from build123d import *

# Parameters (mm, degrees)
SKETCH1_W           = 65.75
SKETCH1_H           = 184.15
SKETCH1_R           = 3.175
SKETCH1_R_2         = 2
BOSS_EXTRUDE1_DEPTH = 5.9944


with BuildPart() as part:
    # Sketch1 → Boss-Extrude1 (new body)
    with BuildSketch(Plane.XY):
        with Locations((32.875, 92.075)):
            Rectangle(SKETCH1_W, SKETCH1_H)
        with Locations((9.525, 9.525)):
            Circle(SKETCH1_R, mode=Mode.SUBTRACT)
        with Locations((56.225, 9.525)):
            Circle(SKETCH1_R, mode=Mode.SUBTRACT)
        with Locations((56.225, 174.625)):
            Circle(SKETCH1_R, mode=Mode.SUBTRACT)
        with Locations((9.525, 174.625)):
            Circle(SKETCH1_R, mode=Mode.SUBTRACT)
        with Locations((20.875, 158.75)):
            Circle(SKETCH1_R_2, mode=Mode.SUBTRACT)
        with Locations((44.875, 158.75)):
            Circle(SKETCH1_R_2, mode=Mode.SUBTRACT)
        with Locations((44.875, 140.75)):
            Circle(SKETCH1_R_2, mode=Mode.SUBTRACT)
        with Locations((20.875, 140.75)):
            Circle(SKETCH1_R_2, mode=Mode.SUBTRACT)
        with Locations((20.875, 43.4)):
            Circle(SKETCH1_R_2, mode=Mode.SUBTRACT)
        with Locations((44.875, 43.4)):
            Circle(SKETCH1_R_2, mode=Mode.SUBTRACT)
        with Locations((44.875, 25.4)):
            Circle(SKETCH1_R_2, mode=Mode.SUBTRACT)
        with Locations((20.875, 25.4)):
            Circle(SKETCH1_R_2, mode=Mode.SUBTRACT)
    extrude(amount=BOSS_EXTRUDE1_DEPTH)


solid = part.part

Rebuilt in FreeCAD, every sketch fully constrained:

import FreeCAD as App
import Part
import Sketcher
from FreeCAD import Vector
Q = App.Units.Quantity


def add_polygon(sketch, points):
    """Adds a closed chain of lines whose ends are joined by coincident constraints."""
    first, n = sketch.GeometryCount, len(points)
    for a, b in zip(points, points[1:] + points[:1]):
        sketch.addGeometry(Part.LineSegment(App.Vector(*a, 0), App.Vector(*b, 0)), False)
    for i in range(n):
        sketch.addConstraint(Sketcher.Constraint("Coincident", first + i, 2, first + (i + 1) % n, 1))

doc = App.newDocument("Part")
body = doc.addObject("PartDesign::Body", "Body")

sketch1 = body.newObject("Sketcher::SketchObject", "Sketch")
sketch1.AttachmentSupport = (doc.getObject("XY_Plane"), [""])
sketch1.MapMode = "FlatFace"
add_polygon(sketch1, [(0, 184.2), (0, 0), (65.8, 0), (65.8, 184.2)])
sketch1.addGeometry(Part.Circle(Vector(9.5, 9.5, 0), Vector(0, 0, 1), 3.2), False)
sketch1.addGeometry(Part.Circle(Vector(20.9, 25.4, 0), Vector(0, 0, 1), 2), False)
sketch1.addGeometry(Part.Circle(Vector(20.9, 43.4, 0), Vector(0, 0, 1), 2), False)
sketch1.addGeometry(Part.Circle(Vector(44.9, 25.4, 0), Vector(0, 0, 1), 2), False)
sketch1.addGeometry(Part.Circle(Vector(44.9, 43.4, 0), Vector(0, 0, 1), 2), False)
sketch1.addGeometry(Part.Circle(Vector(56.2, 9.5, 0), Vector(0, 0, 1), 3.2), False)
sketch1.addGeometry(Part.Circle(Vector(9.5, 174.6, 0), Vector(0, 0, 1), 3.2), False)
sketch1.addGeometry(Part.Circle(Vector(20.9, 140.8, 0), Vector(0, 0, 1), 2), False)
sketch1.addGeometry(Part.Circle(Vector(20.9, 158.8, 0), Vector(0, 0, 1), 2), False)
sketch1.addGeometry(Part.Circle(Vector(44.9, 140.8, 0), Vector(0, 0, 1), 2), False)
sketch1.addGeometry(Part.Circle(Vector(44.9, 158.8, 0), Vector(0, 0, 1), 2), False)
sketch1.addGeometry(Part.Circle(Vector(56.2, 174.6, 0), Vector(0, 0, 1), 3.2), False)
sketch1.addConstraint(Sketcher.Constraint("Vertical", 0))
sketch1.addConstraint(Sketcher.Constraint("Horizontal", 1))
sketch1.addConstraint(Sketcher.Constraint("Vertical", 2))
sketch1.addConstraint(Sketcher.Constraint("Horizontal", 3))
sketch1.addConstraint(Sketcher.Constraint("Coincident", 0, 2, -1, 1))
sketch1.addConstraint(Sketcher.Constraint("Equal", 5, 6))
sketch1.addConstraint(Sketcher.Constraint("Equal", 6, 7))
sketch1.addConstraint(Sketcher.Constraint("Equal", 7, 8))
sketch1.addConstraint(Sketcher.Constraint("Equal", 4, 9))
sketch1.addConstraint(Sketcher.Constraint("Equal", 9, 10))
sketch1.addConstraint(Sketcher.Constraint("Equal", 8, 11))
sketch1.addConstraint(Sketcher.Constraint("Equal", 11, 12))
sketch1.addConstraint(Sketcher.Constraint("Equal", 12, 13))
sketch1.addConstraint(Sketcher.Constraint("Equal", 13, 14))
sketch1.addConstraint(Sketcher.Constraint("Equal", 10, 15))
sketch1.addConstraint(Sketcher.Constraint("Horizontal", 5, 3, 7, 3))
sketch1.addConstraint(Sketcher.Constraint("Horizontal", 6, 3, 8, 3))
sketch1.addConstraint(Sketcher.Constraint("Horizontal", 4, 3, 9, 3))
sketch1.addConstraint(Sketcher.Constraint("Horizontal", 11, 3, 13, 3))
sketch1.addConstraint(Sketcher.Constraint("Horizontal", 12, 3, 14, 3))
sketch1.addConstraint(Sketcher.Constraint("Horizontal", 10, 3, 15, 3))
sketch1.addConstraint(Sketcher.Constraint("Vertical", 5, 3, 6, 3))
sketch1.addConstraint(Sketcher.Constraint("Vertical", 7, 3, 8, 3))
sketch1.addConstraint(Sketcher.Constraint("Vertical", 4, 3, 10, 3))
sketch1.addConstraint(Sketcher.Constraint("Vertical", 6, 3, 11, 3))
sketch1.addConstraint(Sketcher.Constraint("Vertical", 11, 3, 12, 3))
sketch1.addConstraint(Sketcher.Constraint("Vertical", 8, 3, 13, 3))
sketch1.addConstraint(Sketcher.Constraint("Vertical", 13, 3, 14, 3))
sketch1.addConstraint(Sketcher.Constraint("Vertical", 9, 3, 15, 3))
sketch1.addConstraint(Sketcher.Constraint("Diameter", 4, Q("0.25 in")))
sketch1.addConstraint(Sketcher.Constraint("DistanceY", -1, 1, 5, 3, Q("1 in")))
sketch1.addConstraint(Sketcher.Constraint("DistanceY", 14, 3, 2, 2, Q("1 in")))
sketch1.addConstraint(Sketcher.Constraint("DistanceY", 0, 2, 0, 1, Q("7.25 in")))
sketch1.addConstraint(Sketcher.Constraint("DistanceY", 4, 3, 10, 3, Q("6.5 in")))
sketch1.addConstraint(Sketcher.Constraint("Diameter", 5, 4.0))
sketch1.addConstraint(Sketcher.Constraint("DistanceX", -1, 1, 4, 3, Q("0.375 in")))
sketch1.addConstraint(Sketcher.Constraint("DistanceY", -1, 1, 4, 3, Q("0.375 in")))
sketch1.addConstraint(Sketcher.Constraint("DistanceX", 9, 3, 1, 2, Q("0.375 in")))
sketch1.addConstraint(Sketcher.Constraint("DistanceX", 1, 1, 1, 2, 65.75))
sketch1.addConstraint(Sketcher.Constraint("DistanceX", -1, 1, 5, 3, 20.875))
sketch1.addConstraint(Sketcher.Constraint("DistanceY", -1, 1, 6, 3, 43.4))
sketch1.addConstraint(Sketcher.Constraint("DistanceX", -1, 1, 7, 3, 44.875))
sketch1.addConstraint(Sketcher.Constraint("DistanceY", -1, 1, 11, 3, 140.75))
pad1 = body.newObject("PartDesign::Pad", "Pad")
pad1.Profile = sketch1
pad1.Length = Q("0.236 in")

doc.recompute()
